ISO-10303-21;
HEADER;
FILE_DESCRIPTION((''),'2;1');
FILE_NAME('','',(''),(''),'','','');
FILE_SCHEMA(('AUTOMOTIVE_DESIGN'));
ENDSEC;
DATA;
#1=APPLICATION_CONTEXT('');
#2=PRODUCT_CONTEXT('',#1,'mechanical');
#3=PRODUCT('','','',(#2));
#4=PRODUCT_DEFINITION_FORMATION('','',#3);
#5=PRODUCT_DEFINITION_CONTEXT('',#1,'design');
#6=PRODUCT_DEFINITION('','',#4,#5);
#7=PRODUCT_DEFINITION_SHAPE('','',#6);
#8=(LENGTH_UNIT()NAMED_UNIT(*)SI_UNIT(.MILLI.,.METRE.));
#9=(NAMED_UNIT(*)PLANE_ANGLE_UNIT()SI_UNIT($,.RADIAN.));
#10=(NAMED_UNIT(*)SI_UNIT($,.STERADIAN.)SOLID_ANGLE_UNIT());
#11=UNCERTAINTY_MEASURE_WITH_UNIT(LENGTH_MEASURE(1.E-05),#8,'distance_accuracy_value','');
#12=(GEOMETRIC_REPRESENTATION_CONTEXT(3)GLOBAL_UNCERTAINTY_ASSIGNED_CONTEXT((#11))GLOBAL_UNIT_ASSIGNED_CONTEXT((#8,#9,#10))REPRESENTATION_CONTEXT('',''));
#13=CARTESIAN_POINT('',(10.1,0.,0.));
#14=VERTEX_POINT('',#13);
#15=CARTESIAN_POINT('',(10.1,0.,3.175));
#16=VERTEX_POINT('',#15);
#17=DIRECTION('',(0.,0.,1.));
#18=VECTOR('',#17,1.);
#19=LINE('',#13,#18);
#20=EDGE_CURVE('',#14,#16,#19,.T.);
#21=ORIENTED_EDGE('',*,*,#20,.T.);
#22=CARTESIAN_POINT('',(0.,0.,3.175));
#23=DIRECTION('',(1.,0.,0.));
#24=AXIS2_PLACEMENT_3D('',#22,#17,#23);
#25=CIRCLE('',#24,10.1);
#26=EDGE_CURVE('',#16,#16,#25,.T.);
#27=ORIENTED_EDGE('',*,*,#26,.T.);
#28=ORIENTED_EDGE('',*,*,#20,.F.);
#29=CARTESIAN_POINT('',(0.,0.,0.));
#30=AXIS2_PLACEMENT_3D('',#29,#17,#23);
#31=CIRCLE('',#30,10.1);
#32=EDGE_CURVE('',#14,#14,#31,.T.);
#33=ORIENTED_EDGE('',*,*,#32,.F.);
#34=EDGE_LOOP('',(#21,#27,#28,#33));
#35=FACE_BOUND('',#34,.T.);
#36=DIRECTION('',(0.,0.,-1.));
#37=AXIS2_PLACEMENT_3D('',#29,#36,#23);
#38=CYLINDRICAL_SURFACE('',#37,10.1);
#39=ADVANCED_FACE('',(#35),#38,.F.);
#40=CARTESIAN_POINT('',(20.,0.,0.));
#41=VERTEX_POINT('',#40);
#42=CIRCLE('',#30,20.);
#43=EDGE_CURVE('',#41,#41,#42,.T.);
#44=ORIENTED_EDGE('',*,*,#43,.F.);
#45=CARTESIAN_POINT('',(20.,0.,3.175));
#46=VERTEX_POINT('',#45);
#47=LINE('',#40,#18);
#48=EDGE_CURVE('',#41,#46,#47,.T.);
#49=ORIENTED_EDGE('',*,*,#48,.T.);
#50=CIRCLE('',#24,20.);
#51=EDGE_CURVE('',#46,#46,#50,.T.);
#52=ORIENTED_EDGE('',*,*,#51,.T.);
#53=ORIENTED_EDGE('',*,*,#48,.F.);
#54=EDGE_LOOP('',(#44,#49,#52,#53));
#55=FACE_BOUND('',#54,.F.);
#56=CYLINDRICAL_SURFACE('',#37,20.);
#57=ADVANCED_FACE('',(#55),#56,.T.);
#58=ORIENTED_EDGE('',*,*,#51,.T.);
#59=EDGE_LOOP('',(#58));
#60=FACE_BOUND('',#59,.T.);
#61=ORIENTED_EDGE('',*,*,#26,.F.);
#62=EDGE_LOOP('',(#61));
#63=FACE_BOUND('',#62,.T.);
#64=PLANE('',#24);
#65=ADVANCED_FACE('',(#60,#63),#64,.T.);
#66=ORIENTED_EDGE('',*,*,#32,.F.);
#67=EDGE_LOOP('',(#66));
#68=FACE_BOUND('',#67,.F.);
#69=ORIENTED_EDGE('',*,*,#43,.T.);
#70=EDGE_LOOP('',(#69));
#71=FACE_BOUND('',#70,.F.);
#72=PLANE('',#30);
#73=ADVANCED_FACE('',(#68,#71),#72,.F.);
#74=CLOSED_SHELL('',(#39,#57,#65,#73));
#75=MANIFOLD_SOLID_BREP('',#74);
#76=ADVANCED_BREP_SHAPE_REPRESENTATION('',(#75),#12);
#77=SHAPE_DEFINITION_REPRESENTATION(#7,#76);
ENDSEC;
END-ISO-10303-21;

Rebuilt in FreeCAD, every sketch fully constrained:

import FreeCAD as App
import Part
import Sketcher
Q = App.Units.Quantity

doc = App.newDocument("Part")
body = doc.addObject("PartDesign::Body", "Body")

# Sketch on XY plane
sketch1 = body.newObject("Sketcher::SketchObject", "Sketch")
sketch1.AttachmentSupport = (doc.getObject("XY_Plane"), [""])
sketch1.MapMode = "FlatFace"
sketch1.addGeometry(Part.Circle(App.Vector(0, 0, 0), App.Vector(0, 0, 1), 20), False)
sketch1.addGeometry(Part.Circle(App.Vector(0, 0, 0), App.Vector(0, 0, 1), 10), False)
sketch1.addConstraint(Sketcher.Constraint("Coincident", 0, 3, -1, 1))
sketch1.addConstraint(Sketcher.Constraint("Coincident", 1, 3, -1, 1))
sketch1.addConstraint(Sketcher.Constraint("Diameter", 0, Q("40 mm")))
sketch1.addConstraint(Sketcher.Constraint("Diameter", 1, Q("20.2 mm")))
pad1 = body.newObject("PartDesign::Pad", "Pad")
pad1.Profile = sketch1
pad1.Length = 3.175

doc.recompute()
